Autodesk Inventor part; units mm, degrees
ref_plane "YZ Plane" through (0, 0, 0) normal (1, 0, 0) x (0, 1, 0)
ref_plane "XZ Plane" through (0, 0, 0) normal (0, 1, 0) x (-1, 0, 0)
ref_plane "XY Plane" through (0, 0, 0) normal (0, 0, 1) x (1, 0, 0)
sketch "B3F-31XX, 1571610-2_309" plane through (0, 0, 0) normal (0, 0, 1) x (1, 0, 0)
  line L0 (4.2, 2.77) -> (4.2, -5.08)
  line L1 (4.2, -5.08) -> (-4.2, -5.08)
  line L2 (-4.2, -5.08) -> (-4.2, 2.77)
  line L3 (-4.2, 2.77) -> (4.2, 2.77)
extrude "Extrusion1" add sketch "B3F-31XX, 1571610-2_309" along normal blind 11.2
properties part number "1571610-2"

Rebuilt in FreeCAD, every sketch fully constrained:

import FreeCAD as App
import Part
import Sketcher
from FreeCAD import Vector


def add_polygon(sketch, points):
    """Adds a closed chain of lines whose ends are joined by coincident constraints."""
    first, n = sketch.GeometryCount, len(points)
    for a, b in zip(points, points[1:] + points[:1]):
        sketch.addGeometry(Part.LineSegment(App.Vector(*a, 0), App.Vector(*b, 0)), False)
    for i in range(n):
        sketch.addConstraint(Sketcher.Constraint("Coincident", first + i, 2, first + (i + 1) % n, 1))

doc = App.newDocument("Part")
body = doc.addObject("PartDesign::Body", "Body")

# Sketch on XY plane
sketch1 = body.newObject("Sketcher::SketchObject", "Sketch")
sketch1.AttachmentSupport = (doc.getObject("XY_Plane"), [""])
sketch1.MapMode = "FlatFace"
add_polygon(sketch1, [(4, -5), (4, 3), (-4, 3), (-4, -5)])  # lines 0-3
sketch1.addConstraint(Sketcher.Constraint("Vertical", 0))
sketch1.addConstraint(Sketcher.Constraint("Horizontal", 1))
sketch1.addConstraint(Sketcher.Constraint("Vertical", 2))
sketch1.addConstraint(Sketcher.Constraint("Horizontal", 3))
sketch1.addConstraint(Sketcher.Constraint("DistanceX", 1, 2, 1, 1, 8.4))
sketch1.addConstraint(Sketcher.Constraint("DistanceY", 0, 1, 0, 2, 7.85))
sketch1.addConstraint(Sketcher.Constraint("DistanceX", -1, 1, 0, 2, 4.2))
sketch1.addConstraint(Sketcher.Constraint("DistanceY", -1, 1, 0, 2, 2.77))
pad1 = body.newObject("PartDesign::Pad", "Pad")
pad1.Profile = sketch1
pad1.Length = 11.2

doc.recompute()
